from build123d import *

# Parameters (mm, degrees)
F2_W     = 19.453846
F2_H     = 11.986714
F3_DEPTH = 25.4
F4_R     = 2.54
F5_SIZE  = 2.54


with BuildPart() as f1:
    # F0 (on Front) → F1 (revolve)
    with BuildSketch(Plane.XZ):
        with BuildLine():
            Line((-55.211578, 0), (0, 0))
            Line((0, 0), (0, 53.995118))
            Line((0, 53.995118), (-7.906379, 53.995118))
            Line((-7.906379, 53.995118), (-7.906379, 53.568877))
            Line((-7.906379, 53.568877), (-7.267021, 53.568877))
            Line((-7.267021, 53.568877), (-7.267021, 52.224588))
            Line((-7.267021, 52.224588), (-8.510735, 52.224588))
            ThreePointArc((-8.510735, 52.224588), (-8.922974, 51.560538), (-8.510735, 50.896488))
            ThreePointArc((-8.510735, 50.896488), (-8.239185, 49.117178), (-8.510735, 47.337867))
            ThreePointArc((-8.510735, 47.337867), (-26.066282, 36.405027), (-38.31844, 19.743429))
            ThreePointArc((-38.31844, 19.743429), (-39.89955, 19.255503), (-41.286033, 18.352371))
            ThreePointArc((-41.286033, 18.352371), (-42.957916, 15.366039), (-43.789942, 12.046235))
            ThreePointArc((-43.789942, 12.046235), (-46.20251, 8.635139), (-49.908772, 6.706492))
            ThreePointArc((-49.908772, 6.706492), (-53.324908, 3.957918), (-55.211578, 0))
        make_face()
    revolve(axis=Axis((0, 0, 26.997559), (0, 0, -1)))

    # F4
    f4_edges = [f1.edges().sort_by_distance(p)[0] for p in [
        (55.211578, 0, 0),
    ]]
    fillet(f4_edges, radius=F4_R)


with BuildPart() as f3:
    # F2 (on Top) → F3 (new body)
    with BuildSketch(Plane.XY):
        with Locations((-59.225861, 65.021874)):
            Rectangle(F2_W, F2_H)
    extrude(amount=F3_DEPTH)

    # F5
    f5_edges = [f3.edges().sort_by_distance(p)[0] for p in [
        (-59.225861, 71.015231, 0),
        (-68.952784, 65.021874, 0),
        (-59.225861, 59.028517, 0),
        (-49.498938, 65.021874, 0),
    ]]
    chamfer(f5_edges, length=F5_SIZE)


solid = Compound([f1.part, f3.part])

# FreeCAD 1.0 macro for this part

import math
import FreeCAD as App
import Part
import Sketcher
from FreeCAD import Vector
Q = App.Units.Quantity


def edges_at(feature, points):
    """Names of the edges that pass closest to the given points."""
    edges = feature.Shape.Edges
    near = lambda p: min(range(len(edges)), key=lambda i: edges[i].distToShape(Part.Vertex(*p))[0])
    return sorted({f"Edge{near(p) + 1}" for p in points})


def add_polygon(sketch, points):
    """Adds a closed chain of lines whose ends are joined by coincident constraints."""
    first, n = sketch.GeometryCount, len(points)
    for a, b in zip(points, points[1:] + points[:1]):
        sketch.addGeometry(Part.LineSegment(App.Vector(*a, 0), App.Vector(*b, 0)), False)
    for i in range(n):
        sketch.addConstraint(Sketcher.Constraint("Coincident", first + i, 2, first + (i + 1) % n, 1))

doc = App.newDocument("Part")
params = doc.addObject("Spreadsheet::Sheet", "Params")
for row, (alias, value) in enumerate([
    ("revolution_angle", "360 deg"),
    ("fillet_radius", "0.1 in"),
    ("pad1_length", "1 in"),
    ("chamfer_size", "0.1 in"),
], start=1):
    params.set(f"A{row}", alias)
    params.set(f"B{row}", "=" + value)
    params.setAlias(f"B{row}", alias)

body = doc.addObject("PartDesign::Body", "Body")

# Sketch on XZ plane
sketch1 = body.newObject("Sketcher::SketchObject", "Sketch")
sketch1.AttachmentSupport = (doc.getObject("XZ_Plane"), [""])
sketch1.MapMode = "FlatFace"
sketch1.addGeometry(Part.LineSegment(Vector(-55.211578, 0, 0), Vector(0, 0, 0)), False)
sketch1.addGeometry(Part.LineSegment(Vector(0, 0, 0), Vector(0, 53.995118, 0)), False)
sketch1.addGeometry(Part.LineSegment(Vector(0, 53.995118, 0), Vector(-7.906379, 53.995118, 0)), False)
sketch1.addGeometry(Part.LineSegment(Vector(-7.906379, 53.995118, 0), Vector(-7.906379, 53.568877, 0)), False)
sketch1.addGeometry(Part.LineSegment(Vector(-7.906379, 53.568877, 0), Vector(-7.267021, 53.568877, 0)), False)
sketch1.addGeometry(Part.LineSegment(Vector(-7.267021, 53.568877, 0), Vector(-7.267021, 52.224588, 0)), False)
sketch1.addGeometry(Part.LineSegment(Vector(-7.267021, 52.224588, 0), Vector(-8.510735, 52.224588, 0)), False)
sketch1.addGeometry(Part.ArcOfCircle(Part.Circle(Vector(-8.182016, 51.560538, 0), Vector(0, 0, 1), 0.740958), math.radians(116.336383), math.radians(243.663617)), False)
sketch1.addGeometry(Part.ArcOfCircle(Part.Circle(Vector(-14.204358, 49.117177, 0), Vector(0, 0, 1), 5.965173), math.radians(-17.354514), math.radians(17.354514)), False)
sketch1.addGeometry(Part.ArcOfCircle(Part.Circle(Vector(11.154207, -3.800806, 0), Vector(0, 0, 1), 54.789359), math.radians(111.033824), math.radians(154.550032)), False)
sketch1.addGeometry(Part.ArcOfCircle(Part.Circle(Vector(-37.365322, 13.849145, 0), Vector(0, 0, 1), 5.970848), math.radians(99.185338), math.radians(131.044293)), False)
sketch1.addGeometry(Part.ArcOfCircle(Part.Circle(Vector(-30.910411, 10.582467, 0), Vector(0, 0, 1), 12.962443), math.radians(143.171874), math.radians(173.516116)), False)
sketch1.addGeometry(Part.ArcOfCircle(Part.Circle(Vector(-52.035901, 15.319643, 0), Vector(0, 0, 1), 8.871924), math.radians(-76.127646), math.radians(-21.651647)), False)
sketch1.addGeometry(Part.ArcOfCircle(Part.Circle(Vector(-45.590785, -2.157433, 0), Vector(0, 0, 1), 9.859725), math.radians(115.972643), math.radians(167.360694)), False)
sketch1.addConstraint(Sketcher.Constraint("Coincident", 0, 2, 1, 1))
sketch1.addConstraint(Sketcher.Constraint("Coincident", 1, 2, 2, 1))
sketch1.addConstraint(Sketcher.Constraint("Coincident", 2, 2, 3, 1))
sketch1.addConstraint(Sketcher.Constraint("Coincident", 3, 2, 4, 1))
sketch1.addConstraint(Sketcher.Constraint("Coincident", 4, 2, 5, 1))
sketch1.addConstraint(Sketcher.Constraint("Coincident", 5, 2, 6, 1))
sketch1.addConstraint(Sketcher.Constraint("Coincident", 6, 2, 7, 1))
sketch1.addConstraint(Sketcher.Constraint("Coincident", 7, 2, 8, 2))
sketch1.addConstraint(Sketcher.Constraint("Coincident", 8, 1, 9, 1))
sketch1.addConstraint(Sketcher.Constraint("Coincident", 9, 2, 10, 1))
sketch1.addConstraint(Sketcher.Constraint("Coincident", 10, 2, 11, 1))
sketch1.addConstraint(Sketcher.Constraint("Coincident", 11, 2, 12, 2))
sketch1.addConstraint(Sketcher.Constraint("Coincident", 12, 1, 13, 1))
sketch1.addConstraint(Sketcher.Constraint("Coincident", 13, 2, 0, 1))
sketch1.addConstraint(Sketcher.Constraint("Horizontal", 0))
sketch1.addConstraint(Sketcher.Constraint("Vertical", 1))
sketch1.addConstraint(Sketcher.Constraint("Horizontal", 2))
sketch1.addConstraint(Sketcher.Constraint("Vertical", 3))
sketch1.addConstraint(Sketcher.Constraint("Horizontal", 4))
sketch1.addConstraint(Sketcher.Constraint("Vertical", 5))
sketch1.addConstraint(Sketcher.Constraint("Horizontal", 6))
sketch1.addConstraint(Sketcher.Constraint("Coincident", 0, 2, -1, 1))
sketch1.addConstraint(Sketcher.Constraint("Vertical", 6, 2, 7, 2))
sketch1.addConstraint(Sketcher.Constraint("Vertical", 7, 2, 8, 1))
sketch1.addConstraint(Sketcher.Constraint("Radius", 9, Q("54.789359 mm")))
sketch1.addConstraint(Sketcher.Constraint("DistanceX", 9, 2, -1, 1, Q("1.5086 in")))
sketch1.addConstraint(Sketcher.Constraint("Radius", 7, Q("0.740958 mm")))
sketch1.addConstraint(Sketcher.Constraint("Radius", 8, Q("5.965173 mm")))
sketch1.addConstraint(Sketcher.Constraint("Radius", 10, Q("5.970848 mm")))
sketch1.addConstraint(Sketcher.Constraint("Radius", 11, Q("12.962443 mm")))
sketch1.addConstraint(Sketcher.Constraint("Radius", 12, Q("8.871924 mm")))
sketch1.addConstraint(Sketcher.Constraint("Radius", 13, Q("9.859725 mm")))
sketch1.addConstraint(Sketcher.Constraint("DistanceX", 8, 3, 7, 3, Q("0.2371001 in")))
sketch1.addConstraint(Sketcher.Constraint("DistanceX", 0, 1, 0, 2, Q("55.211578 mm")))
sketch1.addConstraint(Sketcher.Constraint("DistanceX", 2, 2, 2, 1, Q("7.906379 mm")))
sketch1.addConstraint(Sketcher.Constraint("DistanceX", 4, 1, 4, 2, Q("0.639358 mm")))
sketch1.addConstraint(Sketcher.Constraint("DistanceY", 3, 2, 3, 1, Q("0.426241 mm")))
sketch1.addConstraint(Sketcher.Constraint("DistanceY", 5, 2, 5, 1, Q("1.344289 mm")))
sketch1.addConstraint(Sketcher.Constraint("DistanceX", 12, 3, -1, 1, Q("52.035901 mm")))
sketch1.addConstraint(Sketcher.Constraint("DistanceY", 13, 3, 11, 3, Q("12.7399 mm")))
sketch1.addConstraint(Sketcher.Constraint("DistanceY", 8, 3, 3, 2, Q("4.4517 mm")))
sketch1.addConstraint(Sketcher.Constraint("DistanceX", 6, 2, 6, 1, Q("1.243714 mm")))
sketch1.addConstraint(Sketcher.Constraint("DistanceY", 1, 1, 1, 2, Q("53.995118 mm")))
sketch1.addConstraint(Sketcher.Constraint("DistanceX", 11, 3, -1, 1, Q("30.910411 mm")))
sketch1.addConstraint(Sketcher.Constraint("DistanceY", -1, 1, 9, 2, Q("19.743429 mm")))
sketch1.addConstraint(Sketcher.Constraint("DistanceY", -1, 1, 10, 2, Q("18.352371 mm")))
sketch1.addConstraint(Sketcher.Constraint("DistanceX", 10, 3, 9, 3, Q("48.51953 mm")))
sketch1.addConstraint(Sketcher.Constraint("DistanceY", 9, 3, 12, 3, Q("19.120449 mm")))
revolution = body.newObject("PartDesign::Revolution", "Revolution")
revolution.Profile = sketch1
revolution.ReferenceAxis = (sketch1, ["V_Axis"])
revolution.setExpression("Angle", "Params.revolution_angle")
doc.recompute()

fillet = body.newObject("PartDesign::Fillet", "Fillet")
fillet.Base = (revolution, edges_at(revolution, [(55.212, 0, 0)]))
fillet.setExpression("Radius", "Params.fillet_radius")
body2 = doc.addObject("PartDesign::Body", "Body001")

# Sketch on XY plane
sketch2 = body2.newObject("Sketcher::SketchObject", "Sketch001")
sketch2.AttachmentSupport = (doc.getObject("XY_Plane001"), [""])
sketch2.MapMode = "FlatFace"
add_polygon(sketch2, [(-68.952784, 71.015231), (-68.952784, 59.028517), (-49.498938, 59.028517), (-49.498938, 71.015231)])  # lines 0-3
sketch2.addConstraint(Sketcher.Constraint("Vertical", 0))
sketch2.addConstraint(Sketcher.Constraint("Horizontal", 1))
sketch2.addConstraint(Sketcher.Constraint("Vertical", 2))
sketch2.addConstraint(Sketcher.Constraint("Horizontal", 3))
sketch2.addConstraint(Sketcher.Constraint("DistanceX", 1, 1, 1, 2, Q("19.453846 mm")))
sketch2.addConstraint(Sketcher.Constraint("DistanceY", 0, 2, 0, 1, Q("11.986714 mm")))
sketch2.addConstraint(Sketcher.Constraint("DistanceX", 1, 2, -1, 1, Q("49.498938 mm")))
sketch2.addConstraint(Sketcher.Constraint("DistanceY", -1, 1, 2, 2, Q("71.015231 mm")))
pad1 = body2.newObject("PartDesign::Pad", "Pad")
pad1.Profile = sketch2
pad1.setExpression("Length", "Params.pad1_length")
doc.recompute()

chamfer = body2.newObject("PartDesign::Chamfer", "Chamfer")
chamfer.Base = (pad1, edges_at(pad1, [
    (-59.226, 71.015, 0),
    (-68.953, 65.022, 0),
    (-59.226, 59.029, 0),
    (-49.499, 65.022, 0),
]))
chamfer.setExpression("Size", "Params.chamfer_size")

doc.recompute()
